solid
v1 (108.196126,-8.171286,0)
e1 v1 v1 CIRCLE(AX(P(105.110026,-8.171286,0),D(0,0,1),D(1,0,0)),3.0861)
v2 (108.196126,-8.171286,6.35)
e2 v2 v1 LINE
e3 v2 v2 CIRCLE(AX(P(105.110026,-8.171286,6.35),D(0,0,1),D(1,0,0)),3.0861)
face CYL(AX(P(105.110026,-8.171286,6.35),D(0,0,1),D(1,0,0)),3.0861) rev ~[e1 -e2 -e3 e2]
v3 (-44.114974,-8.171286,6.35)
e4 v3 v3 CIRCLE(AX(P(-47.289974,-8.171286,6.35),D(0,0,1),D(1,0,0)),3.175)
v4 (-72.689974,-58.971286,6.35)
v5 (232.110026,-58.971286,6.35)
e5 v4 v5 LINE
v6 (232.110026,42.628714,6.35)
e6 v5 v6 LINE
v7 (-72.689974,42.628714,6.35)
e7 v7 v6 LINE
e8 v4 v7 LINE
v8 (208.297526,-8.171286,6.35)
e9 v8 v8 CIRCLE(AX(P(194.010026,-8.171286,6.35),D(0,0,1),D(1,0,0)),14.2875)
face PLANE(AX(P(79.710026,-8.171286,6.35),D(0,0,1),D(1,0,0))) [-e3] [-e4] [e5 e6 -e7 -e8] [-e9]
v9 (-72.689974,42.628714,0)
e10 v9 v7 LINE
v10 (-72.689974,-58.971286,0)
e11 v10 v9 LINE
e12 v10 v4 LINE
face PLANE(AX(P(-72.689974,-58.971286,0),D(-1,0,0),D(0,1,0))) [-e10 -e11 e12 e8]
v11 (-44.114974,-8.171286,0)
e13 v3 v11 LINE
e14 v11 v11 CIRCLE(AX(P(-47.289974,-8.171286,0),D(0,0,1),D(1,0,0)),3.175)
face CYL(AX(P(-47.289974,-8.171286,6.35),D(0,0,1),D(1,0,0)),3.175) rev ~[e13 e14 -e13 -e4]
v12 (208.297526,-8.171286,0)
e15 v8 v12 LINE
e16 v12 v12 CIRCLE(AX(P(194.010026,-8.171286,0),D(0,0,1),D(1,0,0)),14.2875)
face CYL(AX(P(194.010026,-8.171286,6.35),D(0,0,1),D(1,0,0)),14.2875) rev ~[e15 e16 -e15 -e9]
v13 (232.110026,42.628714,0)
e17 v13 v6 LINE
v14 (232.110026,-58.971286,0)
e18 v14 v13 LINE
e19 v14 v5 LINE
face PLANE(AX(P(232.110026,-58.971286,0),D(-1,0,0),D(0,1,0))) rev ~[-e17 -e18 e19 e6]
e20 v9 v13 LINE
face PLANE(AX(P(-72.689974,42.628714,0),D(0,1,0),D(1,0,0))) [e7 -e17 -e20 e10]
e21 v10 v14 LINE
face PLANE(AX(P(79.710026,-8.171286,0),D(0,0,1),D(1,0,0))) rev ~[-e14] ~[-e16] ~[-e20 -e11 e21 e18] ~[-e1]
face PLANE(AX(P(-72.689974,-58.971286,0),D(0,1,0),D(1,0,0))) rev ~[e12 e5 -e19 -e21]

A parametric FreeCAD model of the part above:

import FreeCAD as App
import Part
import Sketcher

V = App.Vector
Q = App.Units.Quantity


def add_polygon(sketch, points):
    """Adds a closed chain of lines whose ends are joined by coincident constraints."""
    first, n = sketch.GeometryCount, len(points)
    for a, b in zip(points, points[1:] + points[:1]):
        sketch.addGeometry(Part.LineSegment(App.Vector(*a, 0), App.Vector(*b, 0)), False)
    for i in range(n):
        sketch.addConstraint(Sketcher.Constraint("Coincident", first + i, 2, first + (i + 1) % n, 1))

doc = App.newDocument("Part")
body = doc.addObject("PartDesign::Body", "Body")

# Sketch on XY plane
sketch1 = body.newObject("Sketcher::SketchObject", "Sketch")
sketch1.AttachmentSupport = (doc.getObject("XY_Plane"), [""])
sketch1.MapMode = "FlatFace"
add_polygon(sketch1, [(-73, 43), (-73, -59), (232, -59), (232, 43)])  # lines 0-3
sketch1.addConstraint(Sketcher.Constraint("Vertical", 0))
sketch1.addConstraint(Sketcher.Constraint("Horizontal", 1))
sketch1.addConstraint(Sketcher.Constraint("Vertical", 2))
sketch1.addConstraint(Sketcher.Constraint("Horizontal", 3))
sketch1.addConstraint(Sketcher.Constraint("DistanceX", 1, 1, 1, 2, Q("12 in")))
sketch1.addConstraint(Sketcher.Constraint("DistanceY", 0, 2, 0, 1, Q("4 in")))
sketch1.addConstraint(Sketcher.Constraint("DistanceX", 0, 2, -1, 1, Q("72.689974 mm")))
sketch1.addConstraint(Sketcher.Constraint("DistanceY", 0, 2, -1, 1, Q("58.971286 mm")))
pad1 = body.newObject("PartDesign::Pad", "Pad")
pad1.Profile = sketch1
pad1.Length = Q("0.25 in")

# Sketch on XY plane
sketch2 = body.newObject("Sketcher::SketchObject", "Sketch001")
sketch2.AttachmentSupport = (doc.getObject("XY_Plane"), [""])
sketch2.MapMode = "FlatFace"
sketch2.AttachmentOffset = App.Placement(V(0, 0, 0.25 * 25.4), App.Rotation())
sketch2.addGeometry(Part.Circle(V(-47.3, -8.2, 0), V(0, 0, 1), 3.2), False)
sketch2.addConstraint(Sketcher.Constraint("Diameter", 0, Q("0.25 in")))
sketch2.addConstraint(Sketcher.Constraint("DistanceX", 0, 3, -1, 1, Q("47.289974 mm")))
sketch2.addConstraint(Sketcher.Constraint("DistanceY", 0, 3, -1, 1, Q("8.171286 mm")))
pocket1 = body.newObject("PartDesign::Pocket", "Pocket")
pocket1.Profile = sketch2
pocket1.Length = Q("0.25 in")

# Sketch on XY plane
sketch3 = body.newObject("Sketcher::SketchObject", "Sketch002")
sketch3.AttachmentSupport = (doc.getObject("XY_Plane"), [""])
sketch3.MapMode = "FlatFace"
sketch3.AttachmentOffset = App.Placement(V(0, 0, 0.25 * 25.4), App.Rotation())
sketch3.addGeometry(Part.Circle(V(194, -8, 0), V(0, 0, 1), 14), False)
sketch3.addConstraint(Sketcher.Constraint("Diameter", 0, Q("1.125 in")))
sketch3.addConstraint(Sketcher.Constraint("DistanceX", -1, 1, 0, 3, Q("194.010026 mm")))
sketch3.addConstraint(Sketcher.Constraint("DistanceY", 0, 3, -1, 1, Q("8.171286 mm")))
pocket2 = body.newObject("PartDesign::Pocket", "Pocket001")
pocket2.Profile = sketch3
pocket2.Length = Q("0.25 in")

# Sketch on XY plane
sketch4 = body.newObject("Sketcher::SketchObject", "Sketch003")
sketch4.AttachmentSupport = (doc.getObject("XY_Plane"), [""])
sketch4.MapMode = "FlatFace"
sketch4.AttachmentOffset = App.Placement(V(0, 0, 0.25 * 25.4), App.Rotation())
sketch4.addGeometry(Part.Circle(V(105.1, -8.2, 0), V(0, 0, 1), 3.1), False)
sketch4.addConstraint(Sketcher.Constraint("Diameter", 0, Q("0.243 in")))
sketch4.addConstraint(Sketcher.Constraint("DistanceX", -1, 1, 0, 3, Q("105.110026 mm")))
sketch4.addConstraint(Sketcher.Constraint("DistanceY", 0, 3, -1, 1, Q("8.171286 mm")))
pocket3 = body.newObject("PartDesign::Pocket", "Pocket002")
pocket3.Profile = sketch4
pocket3.Length = Q("0.25 in")

doc.recompute()
